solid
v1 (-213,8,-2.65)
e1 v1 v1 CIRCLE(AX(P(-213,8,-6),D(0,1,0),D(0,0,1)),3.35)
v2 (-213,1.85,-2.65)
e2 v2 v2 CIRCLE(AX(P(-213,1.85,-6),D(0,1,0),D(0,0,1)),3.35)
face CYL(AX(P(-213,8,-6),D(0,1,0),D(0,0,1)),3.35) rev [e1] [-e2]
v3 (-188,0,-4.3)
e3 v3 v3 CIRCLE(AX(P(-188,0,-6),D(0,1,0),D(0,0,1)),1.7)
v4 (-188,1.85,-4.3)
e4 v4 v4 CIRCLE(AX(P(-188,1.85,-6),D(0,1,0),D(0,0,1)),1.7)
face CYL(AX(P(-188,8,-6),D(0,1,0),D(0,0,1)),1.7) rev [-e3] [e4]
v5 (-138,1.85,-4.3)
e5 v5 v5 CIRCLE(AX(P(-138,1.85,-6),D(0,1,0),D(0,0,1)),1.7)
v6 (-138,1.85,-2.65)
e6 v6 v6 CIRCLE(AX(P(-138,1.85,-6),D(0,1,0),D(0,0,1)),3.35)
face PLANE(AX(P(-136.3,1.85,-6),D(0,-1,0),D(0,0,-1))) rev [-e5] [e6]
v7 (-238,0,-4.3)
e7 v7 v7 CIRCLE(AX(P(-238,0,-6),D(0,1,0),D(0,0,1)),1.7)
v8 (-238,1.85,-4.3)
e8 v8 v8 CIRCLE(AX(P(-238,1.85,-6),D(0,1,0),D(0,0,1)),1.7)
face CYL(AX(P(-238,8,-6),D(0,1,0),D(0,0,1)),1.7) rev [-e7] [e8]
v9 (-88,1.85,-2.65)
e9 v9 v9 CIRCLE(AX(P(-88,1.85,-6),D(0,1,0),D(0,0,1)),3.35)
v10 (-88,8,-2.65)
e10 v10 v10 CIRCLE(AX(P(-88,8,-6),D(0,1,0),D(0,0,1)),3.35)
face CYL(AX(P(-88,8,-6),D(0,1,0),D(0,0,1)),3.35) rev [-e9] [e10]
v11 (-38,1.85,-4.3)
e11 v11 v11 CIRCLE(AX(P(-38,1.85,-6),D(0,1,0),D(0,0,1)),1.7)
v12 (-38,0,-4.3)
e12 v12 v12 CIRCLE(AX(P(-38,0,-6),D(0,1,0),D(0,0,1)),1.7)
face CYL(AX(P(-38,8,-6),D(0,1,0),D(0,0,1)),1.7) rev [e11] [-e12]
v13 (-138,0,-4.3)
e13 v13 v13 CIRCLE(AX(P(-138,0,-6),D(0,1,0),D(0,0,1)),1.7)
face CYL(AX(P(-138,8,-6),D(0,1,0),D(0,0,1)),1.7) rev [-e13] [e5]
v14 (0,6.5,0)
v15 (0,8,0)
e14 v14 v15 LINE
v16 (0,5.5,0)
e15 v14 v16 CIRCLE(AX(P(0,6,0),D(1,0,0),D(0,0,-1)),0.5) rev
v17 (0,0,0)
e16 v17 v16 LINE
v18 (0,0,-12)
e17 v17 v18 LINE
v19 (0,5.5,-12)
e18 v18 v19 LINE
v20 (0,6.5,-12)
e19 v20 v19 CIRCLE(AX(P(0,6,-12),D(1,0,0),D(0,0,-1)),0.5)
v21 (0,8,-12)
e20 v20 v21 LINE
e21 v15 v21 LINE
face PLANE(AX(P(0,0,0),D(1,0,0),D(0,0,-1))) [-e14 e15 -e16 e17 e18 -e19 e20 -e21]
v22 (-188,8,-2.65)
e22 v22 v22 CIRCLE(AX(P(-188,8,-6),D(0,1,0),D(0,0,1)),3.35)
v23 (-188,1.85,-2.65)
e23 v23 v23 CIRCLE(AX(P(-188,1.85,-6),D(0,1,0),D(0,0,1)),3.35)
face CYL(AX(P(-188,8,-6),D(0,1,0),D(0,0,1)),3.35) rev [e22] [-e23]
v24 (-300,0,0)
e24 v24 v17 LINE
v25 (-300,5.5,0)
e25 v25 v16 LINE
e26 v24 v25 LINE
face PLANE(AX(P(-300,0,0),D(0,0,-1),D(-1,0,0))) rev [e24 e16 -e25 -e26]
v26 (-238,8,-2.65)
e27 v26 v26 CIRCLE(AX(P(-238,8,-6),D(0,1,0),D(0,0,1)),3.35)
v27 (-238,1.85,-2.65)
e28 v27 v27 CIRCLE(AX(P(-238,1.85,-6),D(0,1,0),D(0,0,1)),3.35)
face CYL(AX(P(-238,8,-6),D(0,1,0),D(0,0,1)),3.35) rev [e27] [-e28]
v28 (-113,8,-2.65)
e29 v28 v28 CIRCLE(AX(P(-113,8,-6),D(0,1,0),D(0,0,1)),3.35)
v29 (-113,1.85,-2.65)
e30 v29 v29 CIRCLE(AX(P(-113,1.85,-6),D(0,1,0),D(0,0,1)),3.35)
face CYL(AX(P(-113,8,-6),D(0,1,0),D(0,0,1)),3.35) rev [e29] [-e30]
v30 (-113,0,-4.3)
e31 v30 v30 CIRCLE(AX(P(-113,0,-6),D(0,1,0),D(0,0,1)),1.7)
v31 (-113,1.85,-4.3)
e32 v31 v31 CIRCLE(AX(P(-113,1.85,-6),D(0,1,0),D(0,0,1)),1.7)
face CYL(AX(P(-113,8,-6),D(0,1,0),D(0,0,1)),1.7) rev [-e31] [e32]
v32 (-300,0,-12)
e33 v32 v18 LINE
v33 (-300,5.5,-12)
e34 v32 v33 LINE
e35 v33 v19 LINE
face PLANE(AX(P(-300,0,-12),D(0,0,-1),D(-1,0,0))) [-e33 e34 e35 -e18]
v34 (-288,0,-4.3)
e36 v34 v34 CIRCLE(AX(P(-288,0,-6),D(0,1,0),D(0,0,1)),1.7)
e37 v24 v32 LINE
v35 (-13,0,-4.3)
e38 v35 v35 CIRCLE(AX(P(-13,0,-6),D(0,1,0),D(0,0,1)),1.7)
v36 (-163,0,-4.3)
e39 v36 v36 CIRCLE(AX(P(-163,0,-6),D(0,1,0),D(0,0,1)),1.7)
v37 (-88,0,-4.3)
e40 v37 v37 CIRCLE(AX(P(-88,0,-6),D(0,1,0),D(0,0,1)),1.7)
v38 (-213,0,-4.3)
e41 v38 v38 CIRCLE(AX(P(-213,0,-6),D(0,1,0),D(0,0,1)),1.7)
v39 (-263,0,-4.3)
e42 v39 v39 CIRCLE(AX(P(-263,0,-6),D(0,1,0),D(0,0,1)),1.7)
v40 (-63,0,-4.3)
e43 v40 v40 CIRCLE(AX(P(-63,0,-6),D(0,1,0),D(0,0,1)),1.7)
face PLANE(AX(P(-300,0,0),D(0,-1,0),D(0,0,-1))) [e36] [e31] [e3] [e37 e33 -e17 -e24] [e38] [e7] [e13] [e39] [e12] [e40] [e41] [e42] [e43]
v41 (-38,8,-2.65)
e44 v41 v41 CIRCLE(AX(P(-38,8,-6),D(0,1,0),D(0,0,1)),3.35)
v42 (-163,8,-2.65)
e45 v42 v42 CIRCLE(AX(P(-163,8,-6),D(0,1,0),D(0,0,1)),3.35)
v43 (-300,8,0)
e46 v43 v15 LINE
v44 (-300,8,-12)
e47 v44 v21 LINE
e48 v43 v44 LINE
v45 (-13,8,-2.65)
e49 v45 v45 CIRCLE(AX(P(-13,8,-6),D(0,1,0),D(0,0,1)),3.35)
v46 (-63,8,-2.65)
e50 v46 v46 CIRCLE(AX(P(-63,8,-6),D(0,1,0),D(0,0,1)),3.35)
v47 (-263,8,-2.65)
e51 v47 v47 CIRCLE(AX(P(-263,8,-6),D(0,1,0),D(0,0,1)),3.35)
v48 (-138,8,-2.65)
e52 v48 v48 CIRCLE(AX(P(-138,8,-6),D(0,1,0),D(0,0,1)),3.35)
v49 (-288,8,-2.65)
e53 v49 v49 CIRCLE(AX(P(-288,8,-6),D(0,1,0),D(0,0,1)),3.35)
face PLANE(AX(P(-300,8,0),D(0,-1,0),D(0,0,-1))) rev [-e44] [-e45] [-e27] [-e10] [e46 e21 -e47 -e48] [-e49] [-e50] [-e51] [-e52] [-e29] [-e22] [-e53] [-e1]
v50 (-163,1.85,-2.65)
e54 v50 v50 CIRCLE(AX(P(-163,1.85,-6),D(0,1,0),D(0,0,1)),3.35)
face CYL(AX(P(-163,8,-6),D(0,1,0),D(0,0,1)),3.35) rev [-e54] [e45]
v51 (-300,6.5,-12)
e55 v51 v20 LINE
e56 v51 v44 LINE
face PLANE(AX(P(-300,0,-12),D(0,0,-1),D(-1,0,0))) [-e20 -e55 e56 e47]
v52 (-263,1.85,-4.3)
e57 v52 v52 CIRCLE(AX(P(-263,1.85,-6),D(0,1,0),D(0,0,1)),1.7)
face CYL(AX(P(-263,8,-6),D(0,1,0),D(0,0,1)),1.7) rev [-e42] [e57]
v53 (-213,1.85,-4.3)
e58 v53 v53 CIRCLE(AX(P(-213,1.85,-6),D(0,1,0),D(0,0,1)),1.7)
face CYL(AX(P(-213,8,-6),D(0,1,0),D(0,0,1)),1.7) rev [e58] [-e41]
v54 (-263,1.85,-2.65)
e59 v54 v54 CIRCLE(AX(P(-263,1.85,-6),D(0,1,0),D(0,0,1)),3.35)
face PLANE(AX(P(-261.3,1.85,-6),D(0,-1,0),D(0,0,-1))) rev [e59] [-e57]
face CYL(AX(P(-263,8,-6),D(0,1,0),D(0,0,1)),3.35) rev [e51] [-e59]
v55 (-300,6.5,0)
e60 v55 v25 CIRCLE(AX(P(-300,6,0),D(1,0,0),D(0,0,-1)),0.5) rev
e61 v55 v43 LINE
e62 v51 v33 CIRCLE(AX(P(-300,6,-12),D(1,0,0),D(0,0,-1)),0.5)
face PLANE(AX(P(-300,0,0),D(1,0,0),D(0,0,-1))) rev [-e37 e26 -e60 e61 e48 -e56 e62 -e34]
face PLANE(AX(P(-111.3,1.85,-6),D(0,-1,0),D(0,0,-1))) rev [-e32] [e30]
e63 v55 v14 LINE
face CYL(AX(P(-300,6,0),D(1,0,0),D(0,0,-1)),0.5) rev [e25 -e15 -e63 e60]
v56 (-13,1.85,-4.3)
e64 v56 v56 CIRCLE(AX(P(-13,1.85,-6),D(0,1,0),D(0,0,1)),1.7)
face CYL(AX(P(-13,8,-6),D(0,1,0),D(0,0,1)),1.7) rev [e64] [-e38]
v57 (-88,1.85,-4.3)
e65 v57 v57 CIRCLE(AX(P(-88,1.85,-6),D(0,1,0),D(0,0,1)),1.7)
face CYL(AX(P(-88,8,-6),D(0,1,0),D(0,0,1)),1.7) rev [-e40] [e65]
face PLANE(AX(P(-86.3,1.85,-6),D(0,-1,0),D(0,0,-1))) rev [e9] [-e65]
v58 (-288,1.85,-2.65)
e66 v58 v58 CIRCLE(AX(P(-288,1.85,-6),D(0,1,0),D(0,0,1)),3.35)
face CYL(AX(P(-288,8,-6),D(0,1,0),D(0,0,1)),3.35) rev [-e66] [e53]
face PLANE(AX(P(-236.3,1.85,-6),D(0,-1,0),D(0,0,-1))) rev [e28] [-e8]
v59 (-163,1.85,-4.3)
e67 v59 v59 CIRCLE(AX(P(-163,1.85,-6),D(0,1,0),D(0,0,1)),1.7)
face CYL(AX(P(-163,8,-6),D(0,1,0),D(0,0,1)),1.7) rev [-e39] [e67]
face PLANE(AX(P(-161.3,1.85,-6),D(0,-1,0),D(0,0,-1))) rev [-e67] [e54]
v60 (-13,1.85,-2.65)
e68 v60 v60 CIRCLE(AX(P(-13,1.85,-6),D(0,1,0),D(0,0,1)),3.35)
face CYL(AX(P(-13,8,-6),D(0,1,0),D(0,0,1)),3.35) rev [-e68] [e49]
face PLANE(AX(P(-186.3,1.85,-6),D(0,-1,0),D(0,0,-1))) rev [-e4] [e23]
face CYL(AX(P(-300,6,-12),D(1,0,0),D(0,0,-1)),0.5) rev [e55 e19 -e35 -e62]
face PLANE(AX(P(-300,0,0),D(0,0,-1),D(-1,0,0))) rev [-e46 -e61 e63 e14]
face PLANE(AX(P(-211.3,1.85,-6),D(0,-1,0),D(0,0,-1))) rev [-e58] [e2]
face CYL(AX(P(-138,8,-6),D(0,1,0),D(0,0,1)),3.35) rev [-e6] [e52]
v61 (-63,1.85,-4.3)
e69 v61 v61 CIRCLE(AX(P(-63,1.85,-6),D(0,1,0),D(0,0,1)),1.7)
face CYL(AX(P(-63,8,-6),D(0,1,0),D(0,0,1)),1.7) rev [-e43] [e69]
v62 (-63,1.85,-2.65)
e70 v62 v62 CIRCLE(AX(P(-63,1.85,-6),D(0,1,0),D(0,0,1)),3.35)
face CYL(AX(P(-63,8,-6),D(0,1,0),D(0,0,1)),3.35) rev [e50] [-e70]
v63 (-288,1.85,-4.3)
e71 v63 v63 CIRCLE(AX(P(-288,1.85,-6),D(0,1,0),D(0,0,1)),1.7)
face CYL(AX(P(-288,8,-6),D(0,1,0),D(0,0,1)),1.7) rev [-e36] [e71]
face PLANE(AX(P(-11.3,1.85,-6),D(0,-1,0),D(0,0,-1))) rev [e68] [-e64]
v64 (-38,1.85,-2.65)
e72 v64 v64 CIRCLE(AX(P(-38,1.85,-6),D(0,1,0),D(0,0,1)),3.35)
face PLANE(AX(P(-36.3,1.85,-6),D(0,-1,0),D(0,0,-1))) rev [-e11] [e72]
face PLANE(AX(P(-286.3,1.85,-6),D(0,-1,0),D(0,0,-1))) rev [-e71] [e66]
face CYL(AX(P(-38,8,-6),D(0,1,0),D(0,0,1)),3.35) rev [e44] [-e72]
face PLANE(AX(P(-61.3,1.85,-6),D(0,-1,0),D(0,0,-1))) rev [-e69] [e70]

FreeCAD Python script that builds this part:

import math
import FreeCAD as App
import Part
import Sketcher

V = App.Vector
Q = App.Units.Quantity

doc = App.newDocument("Part")
params = doc.addObject("Spreadsheet::Sheet", "Params")
for row, (alias, value) in enumerate([
    ("sketch1_radius", "0.5 mm"),
    ("sketch1_height", "12 mm"),
    ("sketch1_width", "5.5 mm"),
    ("sketch1_width2", "1.5 mm"),
    ("pad1_length", "300 mm"),
    ("sketch2_diameter", "3.4 mm"),
    ("hole_diameter", "3.4 mm"),
    ("hole_cbore_diameter", "6.7 mm"),
    ("hole_cbore_depth", "6.15 mm"),
    ("linearpattern_pitch", "25 mm"),
], start=1):
    params.set(f"A{row}", alias)
    params.set(f"B{row}", "=" + value)
    params.setAlias(f"B{row}", alias)

body = doc.addObject("PartDesign::Body", "Body")

sketch1 = body.newObject("Sketcher::SketchObject", "Sketch")
sketch1.AttachmentSupport = (doc.getObject("YZ_Plane"), [""])
sketch1.MapMode = "FlatFace"
sketch1.addGeometry(Part.LineSegment(V(5.5, 0, 0), V(0, 0, 0)), False)
sketch1.addGeometry(Part.LineSegment(V(0, 0, 0), V(0, -12, 0)), False)
sketch1.addGeometry(Part.LineSegment(V(0, -12, 0), V(5.5, -12, 0)), False)
sketch1.addGeometry(Part.ArcOfCircle(Part.Circle(V(6, -12, 0), V(0, 0, 1), 0.5), math.radians(0), math.radians(180)), False)
sketch1.addGeometry(Part.LineSegment(V(6.5, -12, 0), V(8, -12, 0)), False)
sketch1.addGeometry(Part.LineSegment(V(8, -12, 0), V(8, 0, 0)), False)
sketch1.addGeometry(Part.LineSegment(V(8, 0, 0), V(6.5, 0, 0)), False)
sketch1.addGeometry(Part.ArcOfCircle(Part.Circle(V(6, 0, 0), V(0, 0, 1), 0.5), math.radians(180), math.radians(360)), False)
sketch1.addConstraint(Sketcher.Constraint("Coincident", 0, 2, 1, 1))
sketch1.addConstraint(Sketcher.Constraint("Coincident", 1, 2, 2, 1))
sketch1.addConstraint(Sketcher.Constraint("Coincident", 2, 2, 3, 2))
sketch1.addConstraint(Sketcher.Constraint("Coincident", 3, 1, 4, 1))
sketch1.addConstraint(Sketcher.Constraint("Coincident", 4, 2, 5, 1))
sketch1.addConstraint(Sketcher.Constraint("Coincident", 5, 2, 6, 1))
sketch1.addConstraint(Sketcher.Constraint("Coincident", 6, 2, 7, 2))
sketch1.addConstraint(Sketcher.Constraint("Coincident", 7, 1, 0, 1))
sketch1.addConstraint(Sketcher.Constraint("Horizontal", 0))
sketch1.addConstraint(Sketcher.Constraint("Vertical", 1))
sketch1.addConstraint(Sketcher.Constraint("Horizontal", 2))
sketch1.addConstraint(Sketcher.Constraint("Horizontal", 4))
sketch1.addConstraint(Sketcher.Constraint("Vertical", 5))
sketch1.addConstraint(Sketcher.Constraint("Horizontal", 6))
sketch1.addConstraint(Sketcher.Constraint("Coincident", 0, 2, -1, 1))
sketch1.addConstraint(Sketcher.Constraint("Equal", 3, 7))
sketch1.addConstraint(Sketcher.Constraint("PointOnObject", 7, 3, -1))
sketch1.addConstraint(Sketcher.Constraint("PointOnObject", 5, 2, -1))
sketch1.addConstraint(Sketcher.Constraint("Horizontal", 3, 3, 1, 2))
sketch1.addConstraint(Sketcher.Constraint("Horizontal", 2, 2, 3, 1))
sketch1.addConstraint(Sketcher.Constraint("Vertical", 3, 3, 7, 3))
sketch1.addConstraint(Sketcher.Constraint("Radius", 3, Q("0.5 mm")))
sketch1.addConstraint(Sketcher.Constraint("DistanceY", 1, 2, 1, 1, Q("12 mm")))
sketch1.addConstraint(Sketcher.Constraint("DistanceX", 0, 2, 0, 1, Q("5.5 mm")))
sketch1.addConstraint(Sketcher.Constraint("DistanceX", 4, 1, 4, 2, Q("1.5 mm")))
sketch1.setExpression("Constraints[21]", "Params.sketch1_radius")
sketch1.setExpression("Constraints[22]", "Params.sketch1_height")
sketch1.setExpression("Constraints[23]", "Params.sketch1_width")
sketch1.setExpression("Constraints[24]", "Params.sketch1_width2")
pad1 = body.newObject("PartDesign::Pad", "Pad")
pad1.Profile = sketch1
pad1.setExpression("Length", "Params.pad1_length")
pad1.Reversed = True

sketch2 = body.newObject("Sketcher::SketchObject", "Sketch001")
sketch2.AttachmentSupport = (doc.getObject("XZ_Plane"), [""])
sketch2.MapMode = "FlatFace"
sketch2.AttachmentOffset = App.Placement(V(0, 0, -8), App.Rotation())
sketch2.addGeometry(Part.Circle(V(-288, -6, 0), V(0, 0, 1), 1.7), False)
sketch2.addConstraint(Sketcher.Constraint("Diameter", 0, Q("3.4 mm")))
sketch2.addConstraint(Sketcher.Constraint("DistanceX", 0, 3, -1, 1, Q("288 mm")))
sketch2.addConstraint(Sketcher.Constraint("DistanceY", 0, 3, -1, 1, Q("6 mm")))
sketch2.setExpression("Constraints[0]", "Params.sketch2_diameter")
doc.recompute()
hole = body.newObject("PartDesign::Hole", "Hole")
hole.Profile = sketch2
hole.ThreadType = "None"
hole.setExpression("Diameter", "Params.hole_diameter")
hole.DepthType = "ThroughAll"
hole.HoleCutType = "Counterbore"
hole.setExpression("HoleCutDiameter", "Params.hole_cbore_diameter")
hole.setExpression("HoleCutDepth", "Params.hole_cbore_depth")
hole.Reversed = True
doc.recompute()

linearpattern = body.newObject("PartDesign::LinearPattern", "LinearPattern")
linearpattern.Originals = [hole]
linearpattern.Direction = (doc.getObject("X_Axis"), [""])
linearpattern.Mode = "offset"
linearpattern.setExpression("Offset", "Params.linearpattern_pitch")
linearpattern.Occurrences = 12
body.Tip = linearpattern

doc.recompute()
